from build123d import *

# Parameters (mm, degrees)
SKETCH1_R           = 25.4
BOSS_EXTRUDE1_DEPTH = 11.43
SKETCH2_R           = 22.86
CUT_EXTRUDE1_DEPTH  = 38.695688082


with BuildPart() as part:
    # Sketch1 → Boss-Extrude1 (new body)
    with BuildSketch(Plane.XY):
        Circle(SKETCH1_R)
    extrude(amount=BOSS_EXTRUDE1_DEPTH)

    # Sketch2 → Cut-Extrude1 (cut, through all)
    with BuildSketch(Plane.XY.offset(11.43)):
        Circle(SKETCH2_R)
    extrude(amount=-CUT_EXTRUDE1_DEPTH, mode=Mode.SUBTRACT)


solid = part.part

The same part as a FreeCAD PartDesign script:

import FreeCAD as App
import Part
import Sketcher
Q = App.Units.Quantity

doc = App.newDocument("Part")
body = doc.addObject("PartDesign::Body", "Body")

# Sketch on XY plane
sketch1 = body.newObject("Sketcher::SketchObject", "Sketch")
sketch1.AttachmentSupport = (doc.getObject("XY_Plane"), [""])
sketch1.MapMode = "FlatFace"
sketch1.addGeometry(Part.Circle(App.Vector(0, 0, 0), App.Vector(0, 0, 1), 25), False)
sketch1.addConstraint([
    Sketcher.Constraint("Coincident", 0, 3, -1, 1),
    Sketcher.Constraint("Diameter", 0, Q("2 in")),
])
pad1 = body.newObject("PartDesign::Pad", "Pad")
pad1.Profile = sketch1
pad1.Length = Q("0.45 in")

# Sketch on XY plane
sketch2 = body.newObject("Sketcher::SketchObject", "Sketch001")
sketch2.AttachmentSupport = (doc.getObject("XY_Plane"), [""])
sketch2.MapMode = "FlatFace"
sketch2.AttachmentOffset = App.Placement(App.Vector(0, 0, 0.45 * 25.4), App.Rotation())
sketch2.addGeometry(Part.Circle(App.Vector(0, 0, 0), App.Vector(0, 0, 1), 23), False)
sketch2.addConstraint([
    Sketcher.Constraint("Coincident", 0, 3, -1, 1),
    Sketcher.Constraint("Diameter", 0, Q("1.8 in")),
])
pocket1 = body.newObject("PartDesign::Pocket", "Pocket")
pocket1.Profile = sketch2
pocket1.Type = "ThroughAll"

doc.recompute()
